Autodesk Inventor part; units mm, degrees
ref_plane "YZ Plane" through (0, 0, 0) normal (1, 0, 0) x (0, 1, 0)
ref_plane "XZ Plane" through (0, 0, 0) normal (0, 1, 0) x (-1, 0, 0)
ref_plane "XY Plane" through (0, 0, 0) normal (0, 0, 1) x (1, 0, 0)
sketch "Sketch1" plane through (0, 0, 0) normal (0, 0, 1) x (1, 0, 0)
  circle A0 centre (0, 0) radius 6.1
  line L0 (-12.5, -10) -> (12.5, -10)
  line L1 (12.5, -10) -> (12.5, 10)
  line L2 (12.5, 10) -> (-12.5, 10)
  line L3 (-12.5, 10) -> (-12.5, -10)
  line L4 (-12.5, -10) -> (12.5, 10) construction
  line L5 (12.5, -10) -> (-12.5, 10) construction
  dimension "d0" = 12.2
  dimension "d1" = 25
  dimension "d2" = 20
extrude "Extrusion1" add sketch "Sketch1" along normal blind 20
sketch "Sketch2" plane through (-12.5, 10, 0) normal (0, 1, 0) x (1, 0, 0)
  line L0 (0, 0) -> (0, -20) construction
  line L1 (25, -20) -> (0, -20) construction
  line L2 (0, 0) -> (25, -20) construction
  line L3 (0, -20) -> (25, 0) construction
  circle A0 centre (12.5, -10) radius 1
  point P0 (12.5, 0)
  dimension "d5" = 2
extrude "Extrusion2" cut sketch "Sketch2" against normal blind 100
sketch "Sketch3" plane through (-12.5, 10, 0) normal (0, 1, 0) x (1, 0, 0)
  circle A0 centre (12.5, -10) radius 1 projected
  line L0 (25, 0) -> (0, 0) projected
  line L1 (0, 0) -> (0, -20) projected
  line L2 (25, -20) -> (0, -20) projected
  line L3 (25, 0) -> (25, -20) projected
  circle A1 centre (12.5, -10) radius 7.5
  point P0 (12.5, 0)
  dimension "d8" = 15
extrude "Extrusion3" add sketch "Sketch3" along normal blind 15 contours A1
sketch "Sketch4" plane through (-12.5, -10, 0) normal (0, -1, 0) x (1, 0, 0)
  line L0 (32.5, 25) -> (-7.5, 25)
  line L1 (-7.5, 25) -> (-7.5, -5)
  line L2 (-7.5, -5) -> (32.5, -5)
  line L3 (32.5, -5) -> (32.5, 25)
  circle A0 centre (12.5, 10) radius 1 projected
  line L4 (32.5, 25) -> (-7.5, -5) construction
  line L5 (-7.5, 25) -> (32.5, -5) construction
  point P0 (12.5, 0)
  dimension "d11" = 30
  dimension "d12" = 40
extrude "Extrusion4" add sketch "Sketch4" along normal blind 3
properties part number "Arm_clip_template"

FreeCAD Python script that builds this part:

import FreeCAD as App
import Part
import Sketcher
from FreeCAD import Vector


def add_polygon(sketch, points):
    """Adds a closed chain of lines whose ends are joined by coincident constraints."""
    first, n = sketch.GeometryCount, len(points)
    for a, b in zip(points, points[1:] + points[:1]):
        sketch.addGeometry(Part.LineSegment(App.Vector(*a, 0), App.Vector(*b, 0)), False)
    for i in range(n):
        sketch.addConstraint(Sketcher.Constraint("Coincident", first + i, 2, first + (i + 1) % n, 1))

doc = App.newDocument("Part")
body = doc.addObject("PartDesign::Body", "Body")

sketch1 = doc.addObject("Sketcher::SketchObject", "Sketch")
body.addObject(sketch1)
sketch1.AttachmentSupport = (doc.XY_Plane, [""])
sketch1.MapMode = "FlatFace"
add_polygon(sketch1, [(-12.5, 10), (-12.5, -10), (12.5, -10), (12.5, 10)])
sketch1.addGeometry(Part.Circle(Vector(0, 0, 0), Vector(0, 0, 1), 6.1), False)
sketch1.addConstraint(Sketcher.Constraint("Vertical", 0))
sketch1.addConstraint(Sketcher.Constraint("Horizontal", 1))
sketch1.addConstraint(Sketcher.Constraint("Vertical", 2))
sketch1.addConstraint(Sketcher.Constraint("Horizontal", 3))
sketch1.addConstraint(Sketcher.Constraint("Coincident", 4, 3, -1, 1))
sketch1.addConstraint(Sketcher.Constraint("Symmetric", 0, 2, 2, 2, -1, 1))
sketch1.addConstraint(Sketcher.Constraint("Diameter", 4, 12.2))
sketch1.addConstraint(Sketcher.Constraint("DistanceX", 1, 1, 1, 2, 25.0))
sketch1.addConstraint(Sketcher.Constraint("DistanceY", 0, 2, 0, 1, 20.0))
pad1 = doc.addObject("PartDesign::Pad", "Pad")
body.addObject(pad1)
pad1.Profile = sketch1
pad1.Length = 20

sketch2 = doc.addObject("Sketcher::SketchObject", "Sketch001")
body.addObject(sketch2)
sketch2.AttachmentSupport = (doc.XZ_Plane, [""])
sketch2.MapMode = "FlatFace"
sketch2.AttachmentOffset = App.Placement(Vector(0, 0, -10), App.Rotation())
sketch2.addGeometry(Part.Circle(Vector(0, 10, 0), Vector(0, 0, 1), 1), False)
sketch2.addConstraint(Sketcher.Constraint("PointOnObject", 0, 3, -2))
sketch2.addConstraint(Sketcher.Constraint("Diameter", 0, 2.0))
sketch2.addConstraint(Sketcher.Constraint("DistanceY", -1, 1, 0, 3, 10.0))
pocket1 = doc.addObject("PartDesign::Pocket", "Pocket")
body.addObject(pocket1)
pocket1.Profile = sketch2
pocket1.Length = 100
pocket1.Reversed = True

sketch3 = doc.addObject("Sketcher::SketchObject", "Sketch002")
body.addObject(sketch3)
sketch3.AttachmentSupport = (doc.XZ_Plane, [""])
sketch3.MapMode = "FlatFace"
sketch3.AttachmentOffset = App.Placement(Vector(0, 0, -10), App.Rotation())
sketch3.addGeometry(Part.Circle(Vector(0, 10, 0), Vector(0, 0, 1), 7.5), False)
sketch3.addGeometry(Part.Circle(Vector(0, 10, 0), Vector(0, 0, 1), 1), False)
sketch3.addConstraint(Sketcher.Constraint("Coincident", 1, 3, 0, 3))
sketch3.addConstraint(Sketcher.Constraint("PointOnObject", 0, 3, -2))
sketch3.addConstraint(Sketcher.Constraint("Diameter", 0, 15.0))
sketch3.addConstraint(Sketcher.Constraint("Diameter", 1, 2.0))
sketch3.addConstraint(Sketcher.Constraint("DistanceY", -1, 1, 0, 3, 10.0))
pad2 = doc.addObject("PartDesign::Pad", "Pad001")
body.addObject(pad2)
pad2.Profile = sketch3
pad2.Length = 15
pad2.Reversed = True

sketch4 = doc.addObject("Sketcher::SketchObject", "Sketch003")
body.addObject(sketch4)
sketch4.AttachmentSupport = (doc.XZ_Plane, [""])
sketch4.MapMode = "FlatFace"
sketch4.AttachmentOffset = App.Placement(Vector(0, 0, 10), App.Rotation())
add_polygon(sketch4, [(20, -5), (20, 25), (-20, 25), (-20, -5)])
sketch4.addGeometry(Part.Circle(Vector(0, 10, 0), Vector(0, 0, 1), 1), False)
sketch4.addConstraint(Sketcher.Constraint("Vertical", 0))
sketch4.addConstraint(Sketcher.Constraint("Horizontal", 1))
sketch4.addConstraint(Sketcher.Constraint("Vertical", 2))
sketch4.addConstraint(Sketcher.Constraint("Horizontal", 3))
sketch4.addConstraint(Sketcher.Constraint("PointOnObject", 4, 3, -2))
sketch4.addConstraint(Sketcher.Constraint("DistanceX", 1, 2, 1, 1, 40.0))
sketch4.addConstraint(Sketcher.Constraint("DistanceY", 0, 1, 0, 2, 30.0))
sketch4.addConstraint(Sketcher.Constraint("Diameter", 4, 2.0))
sketch4.addConstraint(Sketcher.Constraint("DistanceY", -1, 1, 4, 3, 10.0))
sketch4.addConstraint(Sketcher.Constraint("DistanceX", -1, 1, 0, 2, 20.0))
sketch4.addConstraint(Sketcher.Constraint("DistanceY", -1, 1, 0, 2, 25.0))
pad3 = doc.addObject("PartDesign::Pad", "Pad002")
body.addObject(pad3)
pad3.Profile = sketch4
pad3.Length = 3

doc.recompute()
